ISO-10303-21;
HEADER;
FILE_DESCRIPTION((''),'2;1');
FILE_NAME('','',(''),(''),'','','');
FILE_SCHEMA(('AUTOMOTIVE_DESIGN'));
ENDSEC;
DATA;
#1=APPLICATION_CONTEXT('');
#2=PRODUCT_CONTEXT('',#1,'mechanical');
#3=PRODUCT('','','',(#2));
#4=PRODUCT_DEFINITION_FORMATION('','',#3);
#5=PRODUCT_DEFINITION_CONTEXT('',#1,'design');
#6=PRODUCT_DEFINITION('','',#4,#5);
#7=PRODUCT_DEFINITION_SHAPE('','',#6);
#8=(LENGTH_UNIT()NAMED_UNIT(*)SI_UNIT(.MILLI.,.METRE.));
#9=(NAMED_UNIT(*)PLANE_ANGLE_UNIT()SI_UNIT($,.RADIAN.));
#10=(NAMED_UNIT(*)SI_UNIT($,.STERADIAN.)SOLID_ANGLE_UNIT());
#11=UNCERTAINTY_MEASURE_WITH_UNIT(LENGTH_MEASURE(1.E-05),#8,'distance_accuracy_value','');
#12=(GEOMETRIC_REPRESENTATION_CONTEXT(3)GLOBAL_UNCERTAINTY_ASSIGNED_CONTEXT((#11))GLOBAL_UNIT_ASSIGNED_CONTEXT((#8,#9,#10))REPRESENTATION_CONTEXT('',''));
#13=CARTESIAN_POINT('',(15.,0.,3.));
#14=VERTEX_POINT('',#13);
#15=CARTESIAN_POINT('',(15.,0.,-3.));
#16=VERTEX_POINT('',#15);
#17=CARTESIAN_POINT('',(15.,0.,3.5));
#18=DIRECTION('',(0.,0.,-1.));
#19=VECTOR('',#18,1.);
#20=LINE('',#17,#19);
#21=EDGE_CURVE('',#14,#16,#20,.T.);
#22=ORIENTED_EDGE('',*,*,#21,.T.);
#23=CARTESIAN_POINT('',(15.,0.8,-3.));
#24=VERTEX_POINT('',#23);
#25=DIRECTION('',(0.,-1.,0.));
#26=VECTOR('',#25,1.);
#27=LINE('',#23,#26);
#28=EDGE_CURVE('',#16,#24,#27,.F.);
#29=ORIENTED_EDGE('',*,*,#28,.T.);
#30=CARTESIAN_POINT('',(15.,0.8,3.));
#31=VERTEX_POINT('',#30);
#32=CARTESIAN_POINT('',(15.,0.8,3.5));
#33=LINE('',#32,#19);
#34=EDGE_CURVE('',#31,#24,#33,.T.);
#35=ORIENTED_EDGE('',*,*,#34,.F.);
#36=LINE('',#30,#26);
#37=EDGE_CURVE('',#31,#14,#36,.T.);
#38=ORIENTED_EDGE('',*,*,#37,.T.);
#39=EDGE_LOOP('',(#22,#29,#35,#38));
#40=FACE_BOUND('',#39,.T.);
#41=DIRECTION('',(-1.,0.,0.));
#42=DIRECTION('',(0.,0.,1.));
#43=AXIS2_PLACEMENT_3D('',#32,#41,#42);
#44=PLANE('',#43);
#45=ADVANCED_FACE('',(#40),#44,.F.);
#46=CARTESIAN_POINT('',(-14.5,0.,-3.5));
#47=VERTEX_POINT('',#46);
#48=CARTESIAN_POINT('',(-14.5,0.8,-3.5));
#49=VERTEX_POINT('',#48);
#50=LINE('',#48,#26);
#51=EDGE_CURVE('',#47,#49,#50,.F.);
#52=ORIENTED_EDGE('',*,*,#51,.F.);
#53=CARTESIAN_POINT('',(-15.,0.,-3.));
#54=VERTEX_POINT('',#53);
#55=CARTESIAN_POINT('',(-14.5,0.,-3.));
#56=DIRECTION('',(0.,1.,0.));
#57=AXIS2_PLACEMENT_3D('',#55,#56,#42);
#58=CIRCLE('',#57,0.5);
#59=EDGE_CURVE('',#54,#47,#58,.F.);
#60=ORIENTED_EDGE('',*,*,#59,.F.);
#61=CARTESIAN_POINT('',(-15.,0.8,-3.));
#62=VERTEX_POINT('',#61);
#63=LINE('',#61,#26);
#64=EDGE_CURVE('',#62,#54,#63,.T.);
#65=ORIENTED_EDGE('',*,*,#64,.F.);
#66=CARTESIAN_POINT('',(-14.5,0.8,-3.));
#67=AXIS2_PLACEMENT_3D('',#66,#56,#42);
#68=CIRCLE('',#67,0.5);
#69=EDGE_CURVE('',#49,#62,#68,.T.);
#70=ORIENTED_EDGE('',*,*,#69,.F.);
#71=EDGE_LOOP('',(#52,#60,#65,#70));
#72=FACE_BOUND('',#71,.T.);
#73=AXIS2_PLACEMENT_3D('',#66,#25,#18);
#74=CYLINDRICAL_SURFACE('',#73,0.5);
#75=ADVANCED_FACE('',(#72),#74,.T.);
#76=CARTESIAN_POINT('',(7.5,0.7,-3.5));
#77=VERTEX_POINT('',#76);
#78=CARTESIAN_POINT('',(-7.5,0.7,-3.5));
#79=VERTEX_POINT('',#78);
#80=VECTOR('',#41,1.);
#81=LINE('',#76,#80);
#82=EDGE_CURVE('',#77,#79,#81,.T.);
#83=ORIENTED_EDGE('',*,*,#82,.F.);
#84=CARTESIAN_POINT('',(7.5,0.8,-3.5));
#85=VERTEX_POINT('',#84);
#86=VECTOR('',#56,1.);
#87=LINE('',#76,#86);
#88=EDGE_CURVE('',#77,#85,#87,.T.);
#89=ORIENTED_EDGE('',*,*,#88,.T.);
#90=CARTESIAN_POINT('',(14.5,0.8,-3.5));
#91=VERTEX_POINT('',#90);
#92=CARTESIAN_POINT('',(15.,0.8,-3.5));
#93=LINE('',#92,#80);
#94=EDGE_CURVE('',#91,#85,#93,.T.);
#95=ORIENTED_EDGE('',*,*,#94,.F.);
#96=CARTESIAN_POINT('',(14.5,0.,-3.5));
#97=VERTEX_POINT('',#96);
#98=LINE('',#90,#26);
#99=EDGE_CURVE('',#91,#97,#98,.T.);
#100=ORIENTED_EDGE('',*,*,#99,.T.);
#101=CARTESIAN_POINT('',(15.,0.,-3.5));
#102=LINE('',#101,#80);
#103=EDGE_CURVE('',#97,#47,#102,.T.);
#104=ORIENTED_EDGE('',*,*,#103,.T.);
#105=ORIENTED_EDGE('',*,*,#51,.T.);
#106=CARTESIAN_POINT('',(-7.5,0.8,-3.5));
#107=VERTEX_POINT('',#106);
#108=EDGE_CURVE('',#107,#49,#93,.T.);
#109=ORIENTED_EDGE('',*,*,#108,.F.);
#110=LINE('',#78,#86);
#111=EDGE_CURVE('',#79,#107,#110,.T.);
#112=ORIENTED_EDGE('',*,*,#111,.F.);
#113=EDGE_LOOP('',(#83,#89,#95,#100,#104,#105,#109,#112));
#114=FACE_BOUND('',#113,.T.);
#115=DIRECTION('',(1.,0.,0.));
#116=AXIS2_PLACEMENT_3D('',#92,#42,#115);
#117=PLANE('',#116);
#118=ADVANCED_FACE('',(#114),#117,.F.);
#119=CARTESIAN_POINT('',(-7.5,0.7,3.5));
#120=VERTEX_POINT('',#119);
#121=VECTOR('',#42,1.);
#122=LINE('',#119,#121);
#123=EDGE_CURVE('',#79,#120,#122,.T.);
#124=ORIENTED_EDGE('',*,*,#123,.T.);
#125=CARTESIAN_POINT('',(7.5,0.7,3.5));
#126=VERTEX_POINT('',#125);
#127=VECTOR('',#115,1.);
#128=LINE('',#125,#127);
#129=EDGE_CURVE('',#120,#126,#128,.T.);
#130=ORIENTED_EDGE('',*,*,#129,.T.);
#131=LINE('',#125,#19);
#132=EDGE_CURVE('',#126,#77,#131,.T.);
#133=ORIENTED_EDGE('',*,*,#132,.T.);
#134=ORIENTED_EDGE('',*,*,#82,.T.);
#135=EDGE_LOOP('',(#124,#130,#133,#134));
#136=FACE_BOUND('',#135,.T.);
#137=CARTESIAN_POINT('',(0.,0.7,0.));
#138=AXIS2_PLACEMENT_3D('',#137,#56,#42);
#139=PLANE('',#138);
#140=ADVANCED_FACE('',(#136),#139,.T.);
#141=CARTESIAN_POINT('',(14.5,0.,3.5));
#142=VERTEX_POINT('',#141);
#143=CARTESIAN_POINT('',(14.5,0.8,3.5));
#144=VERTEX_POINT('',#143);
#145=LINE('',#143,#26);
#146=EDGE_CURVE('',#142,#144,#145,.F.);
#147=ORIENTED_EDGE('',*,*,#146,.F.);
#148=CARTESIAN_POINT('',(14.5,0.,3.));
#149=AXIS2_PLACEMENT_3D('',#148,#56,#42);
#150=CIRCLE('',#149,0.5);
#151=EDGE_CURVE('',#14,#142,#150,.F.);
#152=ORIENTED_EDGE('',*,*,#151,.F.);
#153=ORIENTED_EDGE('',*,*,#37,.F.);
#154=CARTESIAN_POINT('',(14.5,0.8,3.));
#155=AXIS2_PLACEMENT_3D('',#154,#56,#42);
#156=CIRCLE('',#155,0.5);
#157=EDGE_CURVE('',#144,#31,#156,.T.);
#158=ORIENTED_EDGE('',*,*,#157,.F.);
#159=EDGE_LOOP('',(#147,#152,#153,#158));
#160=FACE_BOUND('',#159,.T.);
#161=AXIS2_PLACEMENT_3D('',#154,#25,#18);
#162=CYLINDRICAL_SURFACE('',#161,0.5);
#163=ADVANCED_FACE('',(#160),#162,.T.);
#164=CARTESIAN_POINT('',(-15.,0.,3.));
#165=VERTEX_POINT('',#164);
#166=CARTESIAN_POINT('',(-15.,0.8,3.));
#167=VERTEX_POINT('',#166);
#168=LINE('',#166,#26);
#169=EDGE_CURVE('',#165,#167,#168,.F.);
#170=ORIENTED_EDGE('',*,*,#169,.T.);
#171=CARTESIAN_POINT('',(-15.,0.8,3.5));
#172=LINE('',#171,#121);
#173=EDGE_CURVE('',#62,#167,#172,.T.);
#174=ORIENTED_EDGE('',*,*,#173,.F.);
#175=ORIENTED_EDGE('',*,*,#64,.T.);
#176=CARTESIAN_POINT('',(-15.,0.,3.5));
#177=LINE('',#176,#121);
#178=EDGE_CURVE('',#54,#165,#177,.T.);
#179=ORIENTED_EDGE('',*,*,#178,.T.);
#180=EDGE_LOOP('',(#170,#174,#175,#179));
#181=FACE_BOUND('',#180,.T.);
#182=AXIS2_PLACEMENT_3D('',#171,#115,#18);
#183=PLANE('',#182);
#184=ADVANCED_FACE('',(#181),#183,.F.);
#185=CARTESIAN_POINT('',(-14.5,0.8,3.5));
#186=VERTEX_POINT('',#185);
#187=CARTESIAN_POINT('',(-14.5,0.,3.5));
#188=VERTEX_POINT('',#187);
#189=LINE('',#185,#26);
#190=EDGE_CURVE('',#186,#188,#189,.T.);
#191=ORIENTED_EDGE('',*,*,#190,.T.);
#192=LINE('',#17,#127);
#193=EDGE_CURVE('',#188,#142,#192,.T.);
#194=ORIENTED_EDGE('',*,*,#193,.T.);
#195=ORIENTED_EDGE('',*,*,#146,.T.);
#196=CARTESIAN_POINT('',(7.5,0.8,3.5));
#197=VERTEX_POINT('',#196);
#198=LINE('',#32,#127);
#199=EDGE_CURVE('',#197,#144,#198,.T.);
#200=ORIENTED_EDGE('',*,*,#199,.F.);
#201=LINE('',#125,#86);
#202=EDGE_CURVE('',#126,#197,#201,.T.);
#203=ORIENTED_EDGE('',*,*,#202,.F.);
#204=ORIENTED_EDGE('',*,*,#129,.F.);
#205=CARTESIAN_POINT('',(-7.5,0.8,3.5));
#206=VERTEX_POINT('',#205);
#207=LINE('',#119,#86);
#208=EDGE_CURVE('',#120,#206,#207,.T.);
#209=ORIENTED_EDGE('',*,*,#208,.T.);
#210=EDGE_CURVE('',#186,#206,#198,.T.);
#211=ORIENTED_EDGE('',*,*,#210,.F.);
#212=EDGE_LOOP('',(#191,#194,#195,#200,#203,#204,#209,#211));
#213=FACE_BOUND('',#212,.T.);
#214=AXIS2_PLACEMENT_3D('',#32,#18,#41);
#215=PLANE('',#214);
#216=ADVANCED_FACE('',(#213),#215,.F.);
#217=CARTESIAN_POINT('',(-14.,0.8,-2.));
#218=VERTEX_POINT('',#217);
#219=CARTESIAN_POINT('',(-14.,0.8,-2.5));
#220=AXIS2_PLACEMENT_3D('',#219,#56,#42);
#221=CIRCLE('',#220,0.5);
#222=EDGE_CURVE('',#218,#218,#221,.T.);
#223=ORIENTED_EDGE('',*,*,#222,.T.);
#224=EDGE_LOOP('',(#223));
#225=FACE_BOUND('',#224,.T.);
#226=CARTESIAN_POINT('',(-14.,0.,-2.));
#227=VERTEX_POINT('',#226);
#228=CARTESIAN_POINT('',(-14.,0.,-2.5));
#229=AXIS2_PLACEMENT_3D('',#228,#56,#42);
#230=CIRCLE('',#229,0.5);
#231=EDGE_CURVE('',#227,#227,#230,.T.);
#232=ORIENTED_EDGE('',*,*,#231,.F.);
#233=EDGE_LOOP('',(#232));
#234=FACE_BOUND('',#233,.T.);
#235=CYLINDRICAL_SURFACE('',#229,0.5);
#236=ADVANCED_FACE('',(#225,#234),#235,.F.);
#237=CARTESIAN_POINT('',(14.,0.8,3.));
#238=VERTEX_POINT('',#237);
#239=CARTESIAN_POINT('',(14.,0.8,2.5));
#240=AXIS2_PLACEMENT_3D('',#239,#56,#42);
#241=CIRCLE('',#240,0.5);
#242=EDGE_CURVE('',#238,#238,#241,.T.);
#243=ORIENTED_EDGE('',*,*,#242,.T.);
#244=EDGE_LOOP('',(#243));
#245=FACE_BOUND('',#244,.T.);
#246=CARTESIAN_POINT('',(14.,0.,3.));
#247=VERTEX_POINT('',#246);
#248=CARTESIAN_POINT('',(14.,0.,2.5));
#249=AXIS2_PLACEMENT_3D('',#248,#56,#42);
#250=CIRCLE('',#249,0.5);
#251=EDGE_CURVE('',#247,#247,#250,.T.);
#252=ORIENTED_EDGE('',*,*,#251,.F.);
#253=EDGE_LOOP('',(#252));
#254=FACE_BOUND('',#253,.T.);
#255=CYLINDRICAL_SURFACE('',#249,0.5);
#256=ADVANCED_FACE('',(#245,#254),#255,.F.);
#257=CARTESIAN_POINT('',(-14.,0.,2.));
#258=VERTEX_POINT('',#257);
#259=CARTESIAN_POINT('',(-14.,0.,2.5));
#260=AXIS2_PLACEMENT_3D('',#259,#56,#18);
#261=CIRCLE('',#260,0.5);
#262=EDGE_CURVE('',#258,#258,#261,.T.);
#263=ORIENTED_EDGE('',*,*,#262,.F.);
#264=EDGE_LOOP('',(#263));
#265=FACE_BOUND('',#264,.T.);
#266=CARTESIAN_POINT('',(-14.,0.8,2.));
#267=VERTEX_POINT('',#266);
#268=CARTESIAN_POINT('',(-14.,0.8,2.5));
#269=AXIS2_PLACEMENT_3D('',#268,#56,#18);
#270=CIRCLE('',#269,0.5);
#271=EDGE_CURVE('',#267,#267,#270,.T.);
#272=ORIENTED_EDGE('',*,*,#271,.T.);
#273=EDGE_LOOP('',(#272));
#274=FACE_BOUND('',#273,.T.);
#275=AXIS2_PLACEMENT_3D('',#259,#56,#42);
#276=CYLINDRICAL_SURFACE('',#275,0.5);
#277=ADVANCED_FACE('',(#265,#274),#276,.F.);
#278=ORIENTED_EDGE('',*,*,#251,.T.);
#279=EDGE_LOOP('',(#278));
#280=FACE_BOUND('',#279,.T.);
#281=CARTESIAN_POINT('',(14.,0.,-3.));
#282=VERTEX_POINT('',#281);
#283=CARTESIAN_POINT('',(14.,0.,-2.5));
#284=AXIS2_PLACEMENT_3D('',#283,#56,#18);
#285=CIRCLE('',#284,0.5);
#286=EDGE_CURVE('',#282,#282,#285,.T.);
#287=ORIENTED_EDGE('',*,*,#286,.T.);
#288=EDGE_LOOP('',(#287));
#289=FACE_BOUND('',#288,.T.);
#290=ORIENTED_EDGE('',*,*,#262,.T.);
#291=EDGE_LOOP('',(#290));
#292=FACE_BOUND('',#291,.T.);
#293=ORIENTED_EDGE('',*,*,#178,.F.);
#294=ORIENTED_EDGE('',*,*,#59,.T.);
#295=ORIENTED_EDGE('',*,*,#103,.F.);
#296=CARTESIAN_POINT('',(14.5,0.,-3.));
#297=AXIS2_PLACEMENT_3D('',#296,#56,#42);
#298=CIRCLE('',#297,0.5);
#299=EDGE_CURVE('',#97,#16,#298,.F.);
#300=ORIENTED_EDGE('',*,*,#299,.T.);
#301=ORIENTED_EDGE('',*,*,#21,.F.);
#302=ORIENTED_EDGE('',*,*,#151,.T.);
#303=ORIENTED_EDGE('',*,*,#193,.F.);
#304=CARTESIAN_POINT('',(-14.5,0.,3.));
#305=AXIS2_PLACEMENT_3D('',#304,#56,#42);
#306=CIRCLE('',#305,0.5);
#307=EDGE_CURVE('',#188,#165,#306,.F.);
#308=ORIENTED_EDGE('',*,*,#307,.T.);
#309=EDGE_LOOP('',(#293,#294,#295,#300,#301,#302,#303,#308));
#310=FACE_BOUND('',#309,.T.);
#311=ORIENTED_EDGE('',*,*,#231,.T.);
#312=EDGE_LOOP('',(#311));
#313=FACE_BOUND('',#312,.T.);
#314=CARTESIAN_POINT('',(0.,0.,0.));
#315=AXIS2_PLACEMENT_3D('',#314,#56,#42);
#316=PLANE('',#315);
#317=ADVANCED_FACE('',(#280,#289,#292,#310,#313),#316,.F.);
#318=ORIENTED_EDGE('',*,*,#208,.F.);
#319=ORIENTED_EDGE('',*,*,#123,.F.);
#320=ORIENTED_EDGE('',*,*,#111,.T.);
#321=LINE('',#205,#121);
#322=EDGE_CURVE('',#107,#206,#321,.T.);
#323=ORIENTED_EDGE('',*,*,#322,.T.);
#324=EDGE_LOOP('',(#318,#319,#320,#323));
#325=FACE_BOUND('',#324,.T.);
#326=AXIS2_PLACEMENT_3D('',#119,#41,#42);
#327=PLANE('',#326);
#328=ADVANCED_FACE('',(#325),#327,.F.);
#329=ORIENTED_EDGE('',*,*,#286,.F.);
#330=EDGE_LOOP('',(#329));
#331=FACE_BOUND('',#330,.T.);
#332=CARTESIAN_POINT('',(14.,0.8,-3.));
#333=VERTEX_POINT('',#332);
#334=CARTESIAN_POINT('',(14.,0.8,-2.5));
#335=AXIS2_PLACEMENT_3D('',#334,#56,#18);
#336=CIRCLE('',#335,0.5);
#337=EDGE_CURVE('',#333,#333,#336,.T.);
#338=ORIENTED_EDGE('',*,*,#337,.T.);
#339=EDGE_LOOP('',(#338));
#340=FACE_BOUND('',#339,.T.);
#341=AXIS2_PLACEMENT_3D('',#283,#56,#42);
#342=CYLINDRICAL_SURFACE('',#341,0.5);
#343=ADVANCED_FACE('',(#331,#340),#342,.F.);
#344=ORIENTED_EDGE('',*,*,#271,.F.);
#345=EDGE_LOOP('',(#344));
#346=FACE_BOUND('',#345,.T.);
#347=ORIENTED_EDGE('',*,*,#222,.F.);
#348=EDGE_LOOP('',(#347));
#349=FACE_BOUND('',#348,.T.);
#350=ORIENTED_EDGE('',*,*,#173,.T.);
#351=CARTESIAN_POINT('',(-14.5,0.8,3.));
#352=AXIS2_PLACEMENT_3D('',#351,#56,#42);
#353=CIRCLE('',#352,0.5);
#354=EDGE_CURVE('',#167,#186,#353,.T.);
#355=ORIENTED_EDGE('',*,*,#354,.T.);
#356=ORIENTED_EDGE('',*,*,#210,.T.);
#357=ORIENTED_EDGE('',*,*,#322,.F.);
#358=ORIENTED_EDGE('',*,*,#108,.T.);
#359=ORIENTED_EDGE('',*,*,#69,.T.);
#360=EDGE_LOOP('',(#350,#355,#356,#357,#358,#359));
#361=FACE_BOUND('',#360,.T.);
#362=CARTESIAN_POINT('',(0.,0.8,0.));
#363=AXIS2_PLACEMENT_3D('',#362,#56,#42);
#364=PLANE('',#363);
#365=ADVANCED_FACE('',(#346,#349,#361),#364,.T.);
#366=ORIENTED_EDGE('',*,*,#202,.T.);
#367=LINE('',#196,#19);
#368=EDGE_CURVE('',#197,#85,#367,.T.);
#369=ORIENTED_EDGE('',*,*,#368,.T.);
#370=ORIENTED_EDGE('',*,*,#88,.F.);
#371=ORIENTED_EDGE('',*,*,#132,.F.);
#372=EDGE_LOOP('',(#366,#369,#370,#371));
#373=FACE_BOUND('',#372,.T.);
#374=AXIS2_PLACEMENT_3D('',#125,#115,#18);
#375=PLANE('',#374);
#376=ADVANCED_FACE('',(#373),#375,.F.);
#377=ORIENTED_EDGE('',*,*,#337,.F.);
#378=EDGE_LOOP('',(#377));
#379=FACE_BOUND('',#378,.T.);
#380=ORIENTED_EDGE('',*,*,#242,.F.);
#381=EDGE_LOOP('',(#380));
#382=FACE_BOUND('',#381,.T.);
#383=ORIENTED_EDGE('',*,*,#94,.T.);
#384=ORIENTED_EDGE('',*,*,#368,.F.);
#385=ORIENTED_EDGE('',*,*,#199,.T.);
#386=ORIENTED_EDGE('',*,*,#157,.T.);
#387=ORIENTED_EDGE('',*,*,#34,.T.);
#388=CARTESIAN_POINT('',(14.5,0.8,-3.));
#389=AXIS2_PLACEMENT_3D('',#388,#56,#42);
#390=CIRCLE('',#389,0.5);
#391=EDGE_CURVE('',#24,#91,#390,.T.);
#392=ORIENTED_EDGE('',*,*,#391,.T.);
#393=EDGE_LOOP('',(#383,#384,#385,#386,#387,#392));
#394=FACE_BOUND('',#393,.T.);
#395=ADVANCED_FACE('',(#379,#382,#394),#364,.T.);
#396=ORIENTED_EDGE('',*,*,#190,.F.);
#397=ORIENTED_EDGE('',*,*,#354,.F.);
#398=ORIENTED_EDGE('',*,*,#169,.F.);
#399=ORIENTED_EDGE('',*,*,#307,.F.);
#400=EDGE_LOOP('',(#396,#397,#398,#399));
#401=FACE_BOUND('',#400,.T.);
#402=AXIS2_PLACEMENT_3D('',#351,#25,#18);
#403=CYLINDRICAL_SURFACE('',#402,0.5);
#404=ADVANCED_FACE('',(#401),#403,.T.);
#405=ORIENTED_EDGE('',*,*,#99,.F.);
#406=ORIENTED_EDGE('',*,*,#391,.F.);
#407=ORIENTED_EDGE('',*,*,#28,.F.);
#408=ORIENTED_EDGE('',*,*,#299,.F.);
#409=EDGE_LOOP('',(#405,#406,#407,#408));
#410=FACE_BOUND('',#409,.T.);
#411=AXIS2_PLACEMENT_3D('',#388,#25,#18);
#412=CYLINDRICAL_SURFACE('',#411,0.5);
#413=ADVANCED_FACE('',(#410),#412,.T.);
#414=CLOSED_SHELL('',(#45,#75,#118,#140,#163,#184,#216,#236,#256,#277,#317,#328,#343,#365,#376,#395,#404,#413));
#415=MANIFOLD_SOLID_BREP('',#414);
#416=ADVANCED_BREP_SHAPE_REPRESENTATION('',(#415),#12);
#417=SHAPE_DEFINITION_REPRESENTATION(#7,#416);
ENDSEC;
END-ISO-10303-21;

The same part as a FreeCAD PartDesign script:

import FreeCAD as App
import Part
import Sketcher
Q = App.Units.Quantity


def edges_at(feature, points):
    """Names of the edges that pass closest to the given points."""
    edges = feature.Shape.Edges
    near = lambda p: min(range(len(edges)), key=lambda i: edges[i].distToShape(Part.Vertex(*p))[0])
    return sorted({f"Edge{near(p) + 1}" for p in points})


def add_polygon(sketch, points):
    """Adds a closed chain of lines whose ends are joined by coincident constraints."""
    first, n = sketch.GeometryCount, len(points)
    for a, b in zip(points, points[1:] + points[:1]):
        sketch.addGeometry(Part.LineSegment(App.Vector(*a, 0), App.Vector(*b, 0)), False)
    for i in range(n):
        sketch.addConstraint(Sketcher.Constraint("Coincident", first + i, 2, first + (i + 1) % n, 1))

doc = App.newDocument("Part")
body = doc.addObject("PartDesign::Body", "Body")

# Sketch on XZ plane
sketch1 = doc.addObject("Sketcher::SketchObject", "Sketch")
body.addObject(sketch1)
sketch1.AttachmentSupport = (doc.XZ_Plane, [""])
sketch1.MapMode = "FlatFace"
add_polygon(sketch1, [(-15, -3.5), (-15, 3.5), (15, 3.5), (15, -3.5)])  # lines 0-3
sketch1.addConstraint(Sketcher.Constraint("Vertical", 0))
sketch1.addConstraint(Sketcher.Constraint("Horizontal", 1))
sketch1.addConstraint(Sketcher.Constraint("Vertical", 2))
sketch1.addConstraint(Sketcher.Constraint("Horizontal", 3))
sketch1.addConstraint(Sketcher.Constraint("Symmetric", 0, 2, 2, 2, -1, 1))
sketch1.addConstraint(Sketcher.Constraint("DistanceX", 1, 1, 1, 2, Q("30 mm")))
sketch1.addConstraint(Sketcher.Constraint("DistanceY", 0, 1, 0, 2, Q("7 mm")))
pad1 = doc.addObject("PartDesign::Pad", "Pad")
body.addObject(pad1)
pad1.Profile = sketch1
pad1.Length = 0.8
pad1.Reversed = True

# Sketch on XZ plane
sketch2 = doc.addObject("Sketcher::SketchObject", "Sketch001")
body.addObject(sketch2)
sketch2.AttachmentSupport = (doc.XZ_Plane, [""])
sketch2.MapMode = "FlatFace"
sketch2.AttachmentOffset = App.Placement(App.Vector(0, 0, -0.8), App.Rotation())
sketch2.addGeometry(Part.Circle(App.Vector(-14, -2.5, 0), App.Vector(0, 0, 1), 0.5), False)
sketch2.addGeometry(Part.Circle(App.Vector(14, -2.5, 0), App.Vector(0, 0, 1), 0.5), False)
sketch2.addGeometry(Part.Circle(App.Vector(14, 2.5, 0), App.Vector(0, 0, 1), 0.5), False)
sketch2.addGeometry(Part.Circle(App.Vector(-14, 2.5, 0), App.Vector(0, 0, 1), 0.5), False)
sketch2.addConstraint(Sketcher.Constraint("Equal", 0, 1))
sketch2.addConstraint(Sketcher.Constraint("Equal", 1, 2))
sketch2.addConstraint(Sketcher.Constraint("Equal", 2, 3))
sketch2.addConstraint(Sketcher.Constraint("Symmetric", 0, 3, 2, 3, -1, 1))
sketch2.addConstraint(Sketcher.Constraint("Symmetric", 1, 3, 3, 3, -1, 1))
sketch2.addConstraint(Sketcher.Constraint("Symmetric", 0, 3, 1, 3, -2))
sketch2.addConstraint(Sketcher.Constraint("Diameter", 0, Q("1 mm")))
sketch2.addConstraint(Sketcher.Constraint("DistanceX", 0, 3, -1, 1, Q("14 mm")))
sketch2.addConstraint(Sketcher.Constraint("DistanceY", 1, 3, 2, 3, Q("5 mm")))
pocket1 = doc.addObject("PartDesign::Pocket", "Pocket")
body.addObject(pocket1)
pocket1.Profile = sketch2
pocket1.Type = "ThroughAll"
pocket1.Reversed = True
doc.recompute()

fillet = doc.addObject("PartDesign::Fillet", "Fillet")
body.addObject(fillet)
fillet.Base = (pocket1, edges_at(pocket1, [
    (-15, 0.4, -3.5),
    (15, 0.4, -3.5),
    (15, 0.4, 3.5),
    (-15, 0.4, 3.5),
]))
fillet.Radius = 0.5

# Sketch on XZ plane
sketch3 = doc.addObject("Sketcher::SketchObject", "Sketch002")
body.addObject(sketch3)
sketch3.AttachmentSupport = (doc.XZ_Plane, [""])
sketch3.MapMode = "FlatFace"
sketch3.AttachmentOffset = App.Placement(App.Vector(0, 0, -0.8), App.Rotation())
add_polygon(sketch3, [(-7.5, -3.5), (-7.5, 3.5), (7.5, 3.5), (7.5, -3.5)])  # lines 0-3
sketch3.addConstraint(Sketcher.Constraint("Vertical", 0))
sketch3.addConstraint(Sketcher.Constraint("Horizontal", 1))
sketch3.addConstraint(Sketcher.Constraint("Vertical", 2))
sketch3.addConstraint(Sketcher.Constraint("Horizontal", 3))
sketch3.addConstraint(Sketcher.Constraint("Symmetric", 0, 2, 2, 2, -1, 1))
sketch3.addConstraint(Sketcher.Constraint("DistanceX", 1, 1, 1, 2, Q("15 mm")))
sketch3.addConstraint(Sketcher.Constraint("DistanceY", 0, 1, 0, 2, Q("7 mm")))
pocket2 = doc.addObject("PartDesign::Pocket", "Pocket001")
body.addObject(pocket2)
pocket2.Profile = sketch3
pocket2.Length = 0.1
pocket2.Reversed = True

doc.recompute()
